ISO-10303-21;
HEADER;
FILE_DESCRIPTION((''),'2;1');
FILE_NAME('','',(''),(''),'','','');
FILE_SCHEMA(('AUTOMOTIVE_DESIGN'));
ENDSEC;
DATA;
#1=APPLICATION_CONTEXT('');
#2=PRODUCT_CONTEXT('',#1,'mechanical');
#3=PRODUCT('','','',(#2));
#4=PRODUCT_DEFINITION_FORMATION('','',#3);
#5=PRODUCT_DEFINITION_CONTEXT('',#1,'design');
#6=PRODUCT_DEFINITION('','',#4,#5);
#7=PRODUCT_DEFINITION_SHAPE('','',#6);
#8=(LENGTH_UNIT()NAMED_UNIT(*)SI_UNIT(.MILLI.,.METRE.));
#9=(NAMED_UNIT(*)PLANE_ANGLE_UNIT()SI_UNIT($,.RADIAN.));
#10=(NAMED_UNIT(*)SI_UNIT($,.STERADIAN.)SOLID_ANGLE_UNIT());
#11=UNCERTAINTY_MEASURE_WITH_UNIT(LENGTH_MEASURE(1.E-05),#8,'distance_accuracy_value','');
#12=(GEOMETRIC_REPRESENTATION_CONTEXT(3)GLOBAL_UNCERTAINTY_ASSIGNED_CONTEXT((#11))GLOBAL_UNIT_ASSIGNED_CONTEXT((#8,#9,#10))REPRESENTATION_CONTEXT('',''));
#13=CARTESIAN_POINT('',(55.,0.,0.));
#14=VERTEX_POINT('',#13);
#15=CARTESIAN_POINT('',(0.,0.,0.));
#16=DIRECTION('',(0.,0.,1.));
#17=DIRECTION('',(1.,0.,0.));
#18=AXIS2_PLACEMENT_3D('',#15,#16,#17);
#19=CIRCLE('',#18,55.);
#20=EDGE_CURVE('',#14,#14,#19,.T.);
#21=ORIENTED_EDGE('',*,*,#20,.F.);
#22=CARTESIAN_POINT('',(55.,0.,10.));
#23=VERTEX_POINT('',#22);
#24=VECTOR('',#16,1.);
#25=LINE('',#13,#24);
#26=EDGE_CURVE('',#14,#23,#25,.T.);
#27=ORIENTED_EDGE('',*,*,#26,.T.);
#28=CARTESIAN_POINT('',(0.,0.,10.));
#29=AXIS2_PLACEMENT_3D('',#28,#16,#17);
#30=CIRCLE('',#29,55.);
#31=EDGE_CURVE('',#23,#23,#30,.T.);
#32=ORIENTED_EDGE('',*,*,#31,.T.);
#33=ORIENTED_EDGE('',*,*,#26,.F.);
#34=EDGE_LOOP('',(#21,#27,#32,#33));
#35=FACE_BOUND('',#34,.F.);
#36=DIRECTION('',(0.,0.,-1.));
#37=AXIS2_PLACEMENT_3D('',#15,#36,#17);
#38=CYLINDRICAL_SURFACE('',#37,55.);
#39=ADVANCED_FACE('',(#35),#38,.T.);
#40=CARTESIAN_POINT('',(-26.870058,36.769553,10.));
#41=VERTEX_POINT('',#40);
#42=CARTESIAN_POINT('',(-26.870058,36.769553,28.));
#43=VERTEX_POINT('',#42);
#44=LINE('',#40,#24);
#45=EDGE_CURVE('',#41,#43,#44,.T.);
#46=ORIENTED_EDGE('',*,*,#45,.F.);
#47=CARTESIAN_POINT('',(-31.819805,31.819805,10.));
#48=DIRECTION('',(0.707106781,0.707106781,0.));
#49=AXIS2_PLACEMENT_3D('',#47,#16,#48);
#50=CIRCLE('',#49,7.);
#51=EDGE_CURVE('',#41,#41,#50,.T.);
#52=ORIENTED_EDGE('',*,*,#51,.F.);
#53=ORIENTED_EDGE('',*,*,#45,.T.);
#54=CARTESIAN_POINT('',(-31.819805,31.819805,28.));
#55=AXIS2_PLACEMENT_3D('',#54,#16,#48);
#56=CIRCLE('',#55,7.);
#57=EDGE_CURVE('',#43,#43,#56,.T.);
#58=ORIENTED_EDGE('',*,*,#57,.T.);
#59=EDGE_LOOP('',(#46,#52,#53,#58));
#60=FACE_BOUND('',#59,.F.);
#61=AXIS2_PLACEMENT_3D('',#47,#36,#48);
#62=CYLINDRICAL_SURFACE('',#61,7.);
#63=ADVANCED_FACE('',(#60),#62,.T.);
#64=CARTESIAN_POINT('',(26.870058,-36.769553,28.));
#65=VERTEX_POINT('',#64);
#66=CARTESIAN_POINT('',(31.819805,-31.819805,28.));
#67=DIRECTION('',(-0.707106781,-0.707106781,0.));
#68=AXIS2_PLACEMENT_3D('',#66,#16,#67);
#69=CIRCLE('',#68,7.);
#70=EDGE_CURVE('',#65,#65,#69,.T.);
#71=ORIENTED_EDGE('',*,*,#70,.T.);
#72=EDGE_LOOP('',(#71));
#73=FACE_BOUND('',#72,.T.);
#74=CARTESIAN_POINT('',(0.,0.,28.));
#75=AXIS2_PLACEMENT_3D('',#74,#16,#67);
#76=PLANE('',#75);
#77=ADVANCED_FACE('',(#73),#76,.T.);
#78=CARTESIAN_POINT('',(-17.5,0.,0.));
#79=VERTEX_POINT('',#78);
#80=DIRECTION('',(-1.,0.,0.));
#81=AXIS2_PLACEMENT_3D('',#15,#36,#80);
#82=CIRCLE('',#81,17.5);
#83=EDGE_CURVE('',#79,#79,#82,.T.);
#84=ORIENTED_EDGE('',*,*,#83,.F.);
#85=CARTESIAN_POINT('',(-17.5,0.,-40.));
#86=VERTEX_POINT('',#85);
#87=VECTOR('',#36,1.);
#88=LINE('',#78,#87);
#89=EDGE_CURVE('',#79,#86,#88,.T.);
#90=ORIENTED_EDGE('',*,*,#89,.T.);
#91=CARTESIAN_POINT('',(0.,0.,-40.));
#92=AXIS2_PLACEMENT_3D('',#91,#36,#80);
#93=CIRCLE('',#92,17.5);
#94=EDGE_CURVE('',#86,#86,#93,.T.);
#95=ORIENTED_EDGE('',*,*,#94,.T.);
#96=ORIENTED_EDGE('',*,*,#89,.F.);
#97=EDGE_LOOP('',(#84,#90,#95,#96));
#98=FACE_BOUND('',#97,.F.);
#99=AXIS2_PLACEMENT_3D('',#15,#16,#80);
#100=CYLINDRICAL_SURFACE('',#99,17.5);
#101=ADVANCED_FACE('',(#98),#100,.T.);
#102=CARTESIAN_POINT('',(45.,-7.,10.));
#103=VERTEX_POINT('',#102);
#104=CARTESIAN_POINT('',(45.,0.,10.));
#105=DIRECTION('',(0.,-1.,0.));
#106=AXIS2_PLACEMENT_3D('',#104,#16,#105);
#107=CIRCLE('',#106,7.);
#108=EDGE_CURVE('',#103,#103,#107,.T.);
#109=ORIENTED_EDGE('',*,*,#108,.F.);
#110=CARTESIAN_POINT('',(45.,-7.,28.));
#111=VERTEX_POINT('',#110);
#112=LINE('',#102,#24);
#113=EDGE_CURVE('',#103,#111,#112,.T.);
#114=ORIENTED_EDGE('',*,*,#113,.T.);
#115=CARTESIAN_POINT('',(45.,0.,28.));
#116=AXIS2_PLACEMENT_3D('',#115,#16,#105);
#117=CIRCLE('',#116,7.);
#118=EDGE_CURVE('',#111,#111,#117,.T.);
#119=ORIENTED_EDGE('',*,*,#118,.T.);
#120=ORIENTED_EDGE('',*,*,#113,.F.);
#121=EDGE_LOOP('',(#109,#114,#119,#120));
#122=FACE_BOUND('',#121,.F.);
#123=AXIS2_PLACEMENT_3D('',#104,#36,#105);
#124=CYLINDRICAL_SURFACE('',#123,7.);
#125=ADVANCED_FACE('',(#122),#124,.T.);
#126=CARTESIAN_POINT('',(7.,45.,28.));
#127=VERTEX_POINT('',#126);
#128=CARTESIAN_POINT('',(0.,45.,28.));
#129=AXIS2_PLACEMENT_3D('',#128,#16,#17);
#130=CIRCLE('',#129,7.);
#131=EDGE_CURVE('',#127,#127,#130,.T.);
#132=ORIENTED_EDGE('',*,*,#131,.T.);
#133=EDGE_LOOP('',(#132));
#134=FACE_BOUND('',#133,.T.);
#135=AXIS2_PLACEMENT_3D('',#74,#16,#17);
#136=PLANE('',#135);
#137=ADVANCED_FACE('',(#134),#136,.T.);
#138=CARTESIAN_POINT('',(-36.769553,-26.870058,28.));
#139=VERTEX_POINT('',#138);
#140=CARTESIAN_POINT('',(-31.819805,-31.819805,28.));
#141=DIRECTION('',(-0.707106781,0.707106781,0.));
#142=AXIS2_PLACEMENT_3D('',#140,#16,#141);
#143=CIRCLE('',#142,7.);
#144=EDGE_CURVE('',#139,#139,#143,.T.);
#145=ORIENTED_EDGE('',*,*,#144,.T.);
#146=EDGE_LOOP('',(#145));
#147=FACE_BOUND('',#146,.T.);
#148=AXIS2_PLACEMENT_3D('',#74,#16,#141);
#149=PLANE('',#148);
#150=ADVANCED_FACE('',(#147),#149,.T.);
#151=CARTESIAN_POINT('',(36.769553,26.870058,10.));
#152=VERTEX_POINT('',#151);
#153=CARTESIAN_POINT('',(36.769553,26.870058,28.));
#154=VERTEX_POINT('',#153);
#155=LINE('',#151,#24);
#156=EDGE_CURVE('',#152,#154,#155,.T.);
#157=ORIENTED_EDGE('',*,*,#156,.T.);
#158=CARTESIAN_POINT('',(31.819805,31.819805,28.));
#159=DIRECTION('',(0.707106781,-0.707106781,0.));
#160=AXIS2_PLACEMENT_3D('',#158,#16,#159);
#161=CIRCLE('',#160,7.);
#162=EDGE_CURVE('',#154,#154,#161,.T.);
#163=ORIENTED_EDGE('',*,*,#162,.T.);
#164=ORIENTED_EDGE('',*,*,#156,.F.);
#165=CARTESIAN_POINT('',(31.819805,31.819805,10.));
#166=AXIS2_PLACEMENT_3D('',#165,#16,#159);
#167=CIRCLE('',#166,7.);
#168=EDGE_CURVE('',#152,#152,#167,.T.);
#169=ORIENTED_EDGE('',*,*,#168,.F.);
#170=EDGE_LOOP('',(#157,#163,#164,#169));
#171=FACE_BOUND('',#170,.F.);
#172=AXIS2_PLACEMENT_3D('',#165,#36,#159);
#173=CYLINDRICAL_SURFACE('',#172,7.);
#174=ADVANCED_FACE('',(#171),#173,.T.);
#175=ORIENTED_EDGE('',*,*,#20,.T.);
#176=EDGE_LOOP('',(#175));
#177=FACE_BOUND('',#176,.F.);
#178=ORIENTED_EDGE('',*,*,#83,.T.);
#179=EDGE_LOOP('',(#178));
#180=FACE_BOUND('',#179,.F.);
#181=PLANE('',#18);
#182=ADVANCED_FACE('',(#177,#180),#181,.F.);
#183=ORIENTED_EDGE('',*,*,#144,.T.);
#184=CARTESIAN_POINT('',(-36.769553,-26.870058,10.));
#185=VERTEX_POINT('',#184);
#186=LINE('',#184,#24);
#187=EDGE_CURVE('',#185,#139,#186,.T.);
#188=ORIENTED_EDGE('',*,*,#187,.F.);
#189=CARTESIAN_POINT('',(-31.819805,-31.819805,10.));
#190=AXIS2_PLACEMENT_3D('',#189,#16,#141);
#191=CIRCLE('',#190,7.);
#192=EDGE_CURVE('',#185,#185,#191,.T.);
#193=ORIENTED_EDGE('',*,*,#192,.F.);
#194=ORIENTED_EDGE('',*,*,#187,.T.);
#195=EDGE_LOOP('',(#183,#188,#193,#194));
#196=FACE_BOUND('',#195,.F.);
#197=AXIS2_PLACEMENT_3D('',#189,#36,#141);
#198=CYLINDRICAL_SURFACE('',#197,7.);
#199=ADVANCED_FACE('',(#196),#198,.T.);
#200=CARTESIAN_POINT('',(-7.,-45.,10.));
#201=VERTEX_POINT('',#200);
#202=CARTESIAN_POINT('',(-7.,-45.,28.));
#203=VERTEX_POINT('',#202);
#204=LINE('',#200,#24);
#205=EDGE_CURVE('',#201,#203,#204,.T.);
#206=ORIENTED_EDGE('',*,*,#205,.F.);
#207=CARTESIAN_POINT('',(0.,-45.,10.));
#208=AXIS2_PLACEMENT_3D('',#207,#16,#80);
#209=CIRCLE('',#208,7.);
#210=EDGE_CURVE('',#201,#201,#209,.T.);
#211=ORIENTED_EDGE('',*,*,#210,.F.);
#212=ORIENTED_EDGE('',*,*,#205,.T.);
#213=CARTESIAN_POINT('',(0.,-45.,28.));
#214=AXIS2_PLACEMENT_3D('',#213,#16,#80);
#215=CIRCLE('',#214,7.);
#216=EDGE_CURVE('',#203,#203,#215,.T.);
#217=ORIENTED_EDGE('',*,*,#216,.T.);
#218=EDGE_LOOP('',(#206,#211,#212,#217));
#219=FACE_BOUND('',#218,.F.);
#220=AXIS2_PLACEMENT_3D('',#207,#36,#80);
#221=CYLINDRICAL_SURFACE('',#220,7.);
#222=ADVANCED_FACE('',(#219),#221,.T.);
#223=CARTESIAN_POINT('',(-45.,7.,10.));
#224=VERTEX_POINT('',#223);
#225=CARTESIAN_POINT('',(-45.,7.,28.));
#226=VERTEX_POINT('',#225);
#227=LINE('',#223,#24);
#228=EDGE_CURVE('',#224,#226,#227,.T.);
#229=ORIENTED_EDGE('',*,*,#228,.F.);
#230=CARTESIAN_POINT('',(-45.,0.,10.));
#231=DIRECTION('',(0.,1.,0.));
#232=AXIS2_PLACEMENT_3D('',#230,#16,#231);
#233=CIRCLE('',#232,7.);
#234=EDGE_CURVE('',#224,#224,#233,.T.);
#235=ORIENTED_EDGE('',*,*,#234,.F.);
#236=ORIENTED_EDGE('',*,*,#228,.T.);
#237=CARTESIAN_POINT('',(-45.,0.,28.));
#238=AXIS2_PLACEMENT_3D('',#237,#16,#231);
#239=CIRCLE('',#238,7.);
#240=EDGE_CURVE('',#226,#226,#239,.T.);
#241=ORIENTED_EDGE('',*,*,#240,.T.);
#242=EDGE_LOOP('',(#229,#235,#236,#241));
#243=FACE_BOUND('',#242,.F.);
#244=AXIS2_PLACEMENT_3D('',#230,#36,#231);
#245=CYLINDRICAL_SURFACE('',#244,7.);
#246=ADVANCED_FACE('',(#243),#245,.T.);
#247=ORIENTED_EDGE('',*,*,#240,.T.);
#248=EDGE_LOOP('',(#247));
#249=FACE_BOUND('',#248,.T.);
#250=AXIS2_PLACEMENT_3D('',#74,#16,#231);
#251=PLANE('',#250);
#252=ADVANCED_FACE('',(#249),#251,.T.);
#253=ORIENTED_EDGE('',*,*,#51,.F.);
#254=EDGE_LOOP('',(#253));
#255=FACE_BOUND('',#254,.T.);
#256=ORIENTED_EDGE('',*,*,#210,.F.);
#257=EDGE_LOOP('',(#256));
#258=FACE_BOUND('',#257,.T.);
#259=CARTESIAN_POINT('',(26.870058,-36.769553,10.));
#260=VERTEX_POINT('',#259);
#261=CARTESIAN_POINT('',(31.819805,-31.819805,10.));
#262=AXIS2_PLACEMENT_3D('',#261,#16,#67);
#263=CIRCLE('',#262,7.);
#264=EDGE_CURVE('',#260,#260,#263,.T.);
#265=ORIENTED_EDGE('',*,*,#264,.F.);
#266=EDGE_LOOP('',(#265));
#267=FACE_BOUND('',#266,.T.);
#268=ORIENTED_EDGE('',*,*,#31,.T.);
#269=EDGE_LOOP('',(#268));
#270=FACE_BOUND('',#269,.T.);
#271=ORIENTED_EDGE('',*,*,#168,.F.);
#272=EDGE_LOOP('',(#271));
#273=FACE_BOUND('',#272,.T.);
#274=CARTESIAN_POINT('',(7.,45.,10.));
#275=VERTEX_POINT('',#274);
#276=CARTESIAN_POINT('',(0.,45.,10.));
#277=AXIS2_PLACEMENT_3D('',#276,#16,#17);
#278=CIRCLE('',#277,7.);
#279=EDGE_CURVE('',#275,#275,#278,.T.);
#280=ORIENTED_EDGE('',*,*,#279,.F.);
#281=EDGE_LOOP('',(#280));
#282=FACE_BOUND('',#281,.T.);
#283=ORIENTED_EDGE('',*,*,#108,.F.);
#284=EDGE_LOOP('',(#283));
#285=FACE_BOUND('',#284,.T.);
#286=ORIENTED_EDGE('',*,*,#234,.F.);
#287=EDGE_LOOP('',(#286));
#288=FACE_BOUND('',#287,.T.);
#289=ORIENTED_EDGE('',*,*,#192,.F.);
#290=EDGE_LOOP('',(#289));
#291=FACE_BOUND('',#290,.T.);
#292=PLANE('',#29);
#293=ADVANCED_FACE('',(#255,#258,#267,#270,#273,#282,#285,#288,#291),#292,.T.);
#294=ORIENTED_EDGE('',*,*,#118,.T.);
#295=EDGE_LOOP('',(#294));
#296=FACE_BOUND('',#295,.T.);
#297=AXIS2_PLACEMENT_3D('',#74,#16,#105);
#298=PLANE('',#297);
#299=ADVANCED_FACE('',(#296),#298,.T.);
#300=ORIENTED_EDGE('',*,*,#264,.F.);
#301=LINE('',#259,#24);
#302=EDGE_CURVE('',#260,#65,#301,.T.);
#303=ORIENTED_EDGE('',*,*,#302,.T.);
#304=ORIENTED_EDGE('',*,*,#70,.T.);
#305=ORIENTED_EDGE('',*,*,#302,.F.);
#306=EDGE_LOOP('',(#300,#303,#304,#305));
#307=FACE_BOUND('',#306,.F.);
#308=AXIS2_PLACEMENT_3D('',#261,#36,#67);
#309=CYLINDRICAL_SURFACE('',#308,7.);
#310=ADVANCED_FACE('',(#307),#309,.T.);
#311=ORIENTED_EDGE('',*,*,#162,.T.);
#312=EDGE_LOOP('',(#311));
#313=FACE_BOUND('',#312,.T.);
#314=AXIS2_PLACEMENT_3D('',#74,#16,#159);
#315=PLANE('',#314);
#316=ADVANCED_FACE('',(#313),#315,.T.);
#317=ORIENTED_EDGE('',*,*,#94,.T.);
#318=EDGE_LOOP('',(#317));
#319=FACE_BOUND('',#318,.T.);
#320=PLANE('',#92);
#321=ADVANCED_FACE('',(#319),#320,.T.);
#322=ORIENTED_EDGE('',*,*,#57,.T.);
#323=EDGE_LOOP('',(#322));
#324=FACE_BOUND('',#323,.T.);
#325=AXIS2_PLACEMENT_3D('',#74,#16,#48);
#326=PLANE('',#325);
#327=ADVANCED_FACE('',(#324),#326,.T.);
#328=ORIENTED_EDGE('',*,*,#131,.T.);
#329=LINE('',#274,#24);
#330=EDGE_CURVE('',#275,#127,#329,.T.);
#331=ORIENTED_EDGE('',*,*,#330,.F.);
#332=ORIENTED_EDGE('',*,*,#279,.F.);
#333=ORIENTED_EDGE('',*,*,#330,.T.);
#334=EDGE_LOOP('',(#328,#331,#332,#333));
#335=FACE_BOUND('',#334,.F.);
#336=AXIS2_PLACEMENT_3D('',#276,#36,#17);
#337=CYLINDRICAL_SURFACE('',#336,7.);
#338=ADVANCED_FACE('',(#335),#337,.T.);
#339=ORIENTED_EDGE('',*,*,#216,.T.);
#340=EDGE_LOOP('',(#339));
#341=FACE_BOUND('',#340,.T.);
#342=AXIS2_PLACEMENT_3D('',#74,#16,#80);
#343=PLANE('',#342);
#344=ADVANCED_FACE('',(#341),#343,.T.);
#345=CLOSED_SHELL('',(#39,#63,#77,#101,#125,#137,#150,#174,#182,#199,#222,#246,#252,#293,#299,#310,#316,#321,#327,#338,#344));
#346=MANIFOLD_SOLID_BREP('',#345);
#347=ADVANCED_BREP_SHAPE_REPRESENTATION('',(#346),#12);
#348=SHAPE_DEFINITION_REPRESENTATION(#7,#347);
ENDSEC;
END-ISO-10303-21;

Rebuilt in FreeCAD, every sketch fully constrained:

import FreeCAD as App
import Part
import Sketcher
Q = App.Units.Quantity

doc = App.newDocument("Part")
body = doc.addObject("PartDesign::Body", "Body")

# Sketch on XY plane
sketch1 = body.newObject("Sketcher::SketchObject", "Sketch")
sketch1.AttachmentSupport = (doc.getObject("XY_Plane"), [""])
sketch1.MapMode = "FlatFace"
sketch1.addGeometry(Part.Circle(App.Vector(0, 0, 0), App.Vector(0, 0, 1), 55), False)
sketch1.addConstraint([
    Sketcher.Constraint("Coincident", 0, 3, -1, 1),
    Sketcher.Constraint("Diameter", 0, Q("110 mm")),
])
pad1 = body.newObject("PartDesign::Pad", "Pad")
pad1.Profile = sketch1
pad1.Length = 10

# Sketch on XY plane
sketch2 = body.newObject("Sketcher::SketchObject", "Sketch001")
sketch2.AttachmentSupport = (doc.getObject("XY_Plane"), [""])
sketch2.MapMode = "FlatFace"
sketch2.AttachmentOffset = App.Placement(App.Vector(0, 0, 10), App.Rotation())
sketch2.addGeometry(Part.Circle(App.Vector(0, 45, 0), App.Vector(0, 0, 1), 7), False)
sketch2.addConstraint([
    Sketcher.Constraint("PointOnObject", 0, 3, -2),
    Sketcher.Constraint("Diameter", 0, Q("14 mm")),
    Sketcher.Constraint("DistanceY", -1, 1, 0, 3, Q("45 mm")),
])
pad2 = body.newObject("PartDesign::Pad", "Pad001")
pad2.Profile = sketch2
pad2.Length = 18
doc.recompute()

polarpattern = body.newObject("PartDesign::PolarPattern", "PolarPattern")
polarpattern.Originals = [pad2]
polarpattern.Axis = (doc.getObject("Z_Axis"), [""])
polarpattern.Angle = 360
polarpattern.Occurrences = 8
body.Tip = polarpattern

# Sketch on XY plane
sketch3 = body.newObject("Sketcher::SketchObject", "Sketch002")
sketch3.AttachmentSupport = (doc.getObject("XY_Plane"), [""])
sketch3.MapMode = "FlatFace"
sketch3.addGeometry(Part.Circle(App.Vector(0, 0, 0), App.Vector(0, 0, 1), 18), False)
sketch3.addConstraint([
    Sketcher.Constraint("Coincident", 0, 3, -1, 1),
    Sketcher.Constraint("Diameter", 0, Q("35 mm")),
])
pad3 = body.newObject("PartDesign::Pad", "Pad002")
pad3.Profile = sketch3
pad3.Length = 40
pad3.Reversed = True

doc.recompute()
